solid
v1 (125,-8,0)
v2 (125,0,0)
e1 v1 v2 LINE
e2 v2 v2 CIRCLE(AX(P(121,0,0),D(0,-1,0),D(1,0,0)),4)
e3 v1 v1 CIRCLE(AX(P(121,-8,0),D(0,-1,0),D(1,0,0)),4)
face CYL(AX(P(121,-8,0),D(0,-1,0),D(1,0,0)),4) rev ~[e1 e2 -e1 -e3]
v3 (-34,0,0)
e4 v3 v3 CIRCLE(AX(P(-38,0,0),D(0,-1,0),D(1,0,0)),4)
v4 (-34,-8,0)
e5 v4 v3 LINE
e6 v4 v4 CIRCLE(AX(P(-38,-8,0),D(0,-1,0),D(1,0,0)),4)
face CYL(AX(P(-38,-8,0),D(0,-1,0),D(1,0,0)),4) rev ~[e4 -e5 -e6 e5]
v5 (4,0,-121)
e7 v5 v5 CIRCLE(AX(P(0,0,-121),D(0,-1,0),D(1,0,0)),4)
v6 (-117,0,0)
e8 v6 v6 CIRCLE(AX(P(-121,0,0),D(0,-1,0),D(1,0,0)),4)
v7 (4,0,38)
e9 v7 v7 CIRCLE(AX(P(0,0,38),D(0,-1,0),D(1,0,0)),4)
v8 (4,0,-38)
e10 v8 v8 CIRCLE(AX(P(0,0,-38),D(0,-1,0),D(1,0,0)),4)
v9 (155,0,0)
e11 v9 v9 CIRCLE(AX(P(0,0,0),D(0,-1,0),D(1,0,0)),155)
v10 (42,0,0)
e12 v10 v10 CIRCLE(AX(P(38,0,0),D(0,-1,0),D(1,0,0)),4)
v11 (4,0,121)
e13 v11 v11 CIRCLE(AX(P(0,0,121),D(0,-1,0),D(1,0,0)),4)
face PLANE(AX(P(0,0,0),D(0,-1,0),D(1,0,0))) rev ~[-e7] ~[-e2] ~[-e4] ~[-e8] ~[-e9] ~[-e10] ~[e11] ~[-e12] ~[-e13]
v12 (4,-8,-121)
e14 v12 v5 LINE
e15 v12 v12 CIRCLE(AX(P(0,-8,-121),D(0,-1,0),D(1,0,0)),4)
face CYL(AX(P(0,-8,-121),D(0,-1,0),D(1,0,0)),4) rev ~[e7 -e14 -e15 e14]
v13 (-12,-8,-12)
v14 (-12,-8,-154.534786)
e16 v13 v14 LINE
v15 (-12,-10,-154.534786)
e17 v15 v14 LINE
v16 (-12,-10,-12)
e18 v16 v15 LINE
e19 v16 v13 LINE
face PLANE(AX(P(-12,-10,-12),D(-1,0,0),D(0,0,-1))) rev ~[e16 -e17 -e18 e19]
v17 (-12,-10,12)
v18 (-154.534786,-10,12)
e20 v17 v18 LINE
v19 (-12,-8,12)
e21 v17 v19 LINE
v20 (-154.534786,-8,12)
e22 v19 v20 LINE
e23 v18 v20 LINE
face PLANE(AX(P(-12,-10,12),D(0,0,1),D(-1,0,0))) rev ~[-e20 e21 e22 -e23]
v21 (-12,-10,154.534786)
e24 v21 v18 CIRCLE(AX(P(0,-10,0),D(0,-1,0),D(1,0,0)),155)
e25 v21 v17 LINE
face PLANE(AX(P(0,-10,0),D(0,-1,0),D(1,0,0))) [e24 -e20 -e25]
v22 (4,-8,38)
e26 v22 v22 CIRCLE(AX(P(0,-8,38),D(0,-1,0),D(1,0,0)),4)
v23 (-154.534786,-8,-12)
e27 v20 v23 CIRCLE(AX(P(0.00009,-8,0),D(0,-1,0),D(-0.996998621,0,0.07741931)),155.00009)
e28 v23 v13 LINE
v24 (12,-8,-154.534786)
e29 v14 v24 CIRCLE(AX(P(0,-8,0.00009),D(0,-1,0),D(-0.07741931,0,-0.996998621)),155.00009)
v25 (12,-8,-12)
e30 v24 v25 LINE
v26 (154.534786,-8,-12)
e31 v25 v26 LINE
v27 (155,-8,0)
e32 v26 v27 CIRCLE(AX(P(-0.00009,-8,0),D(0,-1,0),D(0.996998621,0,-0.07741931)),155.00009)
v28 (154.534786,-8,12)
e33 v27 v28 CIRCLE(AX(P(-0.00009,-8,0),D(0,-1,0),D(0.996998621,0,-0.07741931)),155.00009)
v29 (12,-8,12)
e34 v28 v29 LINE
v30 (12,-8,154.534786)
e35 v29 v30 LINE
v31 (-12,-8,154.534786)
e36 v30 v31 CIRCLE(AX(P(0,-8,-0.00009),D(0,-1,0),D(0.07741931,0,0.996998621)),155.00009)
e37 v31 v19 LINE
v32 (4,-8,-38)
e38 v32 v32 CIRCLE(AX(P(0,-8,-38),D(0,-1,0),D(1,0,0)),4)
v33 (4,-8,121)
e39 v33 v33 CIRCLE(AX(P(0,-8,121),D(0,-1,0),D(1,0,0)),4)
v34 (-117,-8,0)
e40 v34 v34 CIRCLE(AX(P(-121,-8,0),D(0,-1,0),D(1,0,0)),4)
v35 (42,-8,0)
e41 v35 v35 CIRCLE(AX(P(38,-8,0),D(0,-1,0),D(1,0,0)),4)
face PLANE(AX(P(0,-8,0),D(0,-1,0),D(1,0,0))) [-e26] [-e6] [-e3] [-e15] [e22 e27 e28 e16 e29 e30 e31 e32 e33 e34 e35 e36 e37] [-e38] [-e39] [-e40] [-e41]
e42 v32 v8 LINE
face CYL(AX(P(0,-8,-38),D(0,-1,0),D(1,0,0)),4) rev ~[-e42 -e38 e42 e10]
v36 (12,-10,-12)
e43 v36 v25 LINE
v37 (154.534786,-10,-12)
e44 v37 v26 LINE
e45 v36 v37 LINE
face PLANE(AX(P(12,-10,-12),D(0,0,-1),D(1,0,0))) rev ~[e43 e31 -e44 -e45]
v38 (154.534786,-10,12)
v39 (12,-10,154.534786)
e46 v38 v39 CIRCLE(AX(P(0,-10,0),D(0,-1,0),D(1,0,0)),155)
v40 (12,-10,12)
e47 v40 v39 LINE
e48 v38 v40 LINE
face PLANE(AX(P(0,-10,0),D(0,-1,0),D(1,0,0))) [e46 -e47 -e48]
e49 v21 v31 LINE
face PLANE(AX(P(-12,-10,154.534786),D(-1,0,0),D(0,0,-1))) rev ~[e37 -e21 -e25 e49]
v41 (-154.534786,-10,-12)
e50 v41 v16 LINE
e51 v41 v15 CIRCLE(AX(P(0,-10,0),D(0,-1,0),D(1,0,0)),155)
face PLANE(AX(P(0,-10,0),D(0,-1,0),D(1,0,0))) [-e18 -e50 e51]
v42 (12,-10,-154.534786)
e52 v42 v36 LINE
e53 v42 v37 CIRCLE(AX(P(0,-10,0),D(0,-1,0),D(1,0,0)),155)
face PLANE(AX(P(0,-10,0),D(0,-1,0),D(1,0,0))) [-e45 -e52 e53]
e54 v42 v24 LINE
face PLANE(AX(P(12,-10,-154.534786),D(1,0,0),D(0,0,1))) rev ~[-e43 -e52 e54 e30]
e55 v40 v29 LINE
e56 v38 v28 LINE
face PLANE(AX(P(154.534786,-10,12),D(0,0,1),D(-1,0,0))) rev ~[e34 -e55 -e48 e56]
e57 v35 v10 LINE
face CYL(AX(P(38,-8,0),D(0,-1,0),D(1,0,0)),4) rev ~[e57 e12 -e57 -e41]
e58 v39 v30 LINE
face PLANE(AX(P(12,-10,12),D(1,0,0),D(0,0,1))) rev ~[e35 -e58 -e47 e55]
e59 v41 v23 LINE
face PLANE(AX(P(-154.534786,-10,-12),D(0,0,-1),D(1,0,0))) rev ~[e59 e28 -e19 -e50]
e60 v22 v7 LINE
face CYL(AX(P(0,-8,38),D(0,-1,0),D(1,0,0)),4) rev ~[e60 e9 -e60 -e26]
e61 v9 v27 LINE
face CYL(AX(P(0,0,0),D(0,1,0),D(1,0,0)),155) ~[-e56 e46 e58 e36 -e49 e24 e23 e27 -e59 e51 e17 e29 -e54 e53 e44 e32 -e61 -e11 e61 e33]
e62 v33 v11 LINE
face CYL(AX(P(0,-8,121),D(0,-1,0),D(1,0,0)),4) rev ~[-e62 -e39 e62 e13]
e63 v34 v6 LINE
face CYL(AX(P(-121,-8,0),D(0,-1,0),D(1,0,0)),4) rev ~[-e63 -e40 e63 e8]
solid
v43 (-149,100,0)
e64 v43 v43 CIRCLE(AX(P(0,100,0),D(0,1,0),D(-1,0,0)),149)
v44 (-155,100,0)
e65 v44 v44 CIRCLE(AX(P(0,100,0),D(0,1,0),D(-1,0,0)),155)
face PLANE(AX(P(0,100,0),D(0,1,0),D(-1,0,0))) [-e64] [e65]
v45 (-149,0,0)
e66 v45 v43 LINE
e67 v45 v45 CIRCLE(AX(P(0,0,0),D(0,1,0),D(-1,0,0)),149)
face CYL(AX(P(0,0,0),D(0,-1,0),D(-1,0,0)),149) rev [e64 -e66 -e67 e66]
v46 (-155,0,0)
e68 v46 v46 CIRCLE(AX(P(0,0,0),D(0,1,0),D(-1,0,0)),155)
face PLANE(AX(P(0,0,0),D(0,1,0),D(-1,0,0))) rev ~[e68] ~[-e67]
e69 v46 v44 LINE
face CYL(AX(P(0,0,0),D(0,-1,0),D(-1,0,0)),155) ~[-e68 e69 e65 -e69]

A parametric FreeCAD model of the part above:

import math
import FreeCAD as App
import Part
import Sketcher
Q = App.Units.Quantity

doc = App.newDocument("Part")
params = doc.addObject("Spreadsheet::Sheet", "Params")
for row, (alias, value) in enumerate([
    ("sketch1_diameter", "310 mm"),
    ("pad1_length", "10 mm"),
    ("pocket1_length", "2 mm"),
    ("sketch3_diameter", "8 mm"),
    ("sketch4_diameter", "310 mm"),
    ("sketch4_diameter2", "298 mm"),
    ("pad2_length", "100 mm"),
], start=1):
    params.set(f"A{row}", alias)
    params.set(f"B{row}", "=" + value)
    params.setAlias(f"B{row}", alias)

body = doc.addObject("PartDesign::Body", "Body")

# Sketch on XZ plane
sketch1 = body.newObject("Sketcher::SketchObject", "Sketch")
sketch1.AttachmentSupport = (doc.getObject("XZ_Plane"), [""])
sketch1.MapMode = "FlatFace"
sketch1.addGeometry(Part.Circle(App.Vector(0, 0, 0), App.Vector(0, 0, 1), 155), False)
sketch1.addConstraint(Sketcher.Constraint("Coincident", 0, 3, -1, 1))
sketch1.addConstraint(Sketcher.Constraint("Diameter", 0, Q("310 mm")))
sketch1.setExpression("Constraints[1]", "Params.sketch1_diameter")
pad1 = body.newObject("PartDesign::Pad", "Pad")
pad1.Profile = sketch1
pad1.setExpression("Length", "Params.pad1_length")

# Sketch on XZ plane
sketch2 = body.newObject("Sketcher::SketchObject", "Sketch001")
sketch2.AttachmentSupport = (doc.getObject("XZ_Plane"), [""])
sketch2.MapMode = "FlatFace"
sketch2.AttachmentOffset = App.Placement(App.Vector(0, 0, 10), App.Rotation())
sketch2.addGeometry(Part.LineSegment(App.Vector(-12, 155, 0), App.Vector(-12, 12, 0)), False)
sketch2.addGeometry(Part.LineSegment(App.Vector(-12, 12, 0), App.Vector(-155, 12, 0)), False)
sketch2.addGeometry(Part.ArcOfCircle(Part.Circle(App.Vector(0, 0, 0), App.Vector(0, 0, 1), 155), math.radians(175.56), math.radians(184.44)), False)
sketch2.addGeometry(Part.LineSegment(App.Vector(-155, -12, 0), App.Vector(-12, -12, 0)), False)
sketch2.addGeometry(Part.LineSegment(App.Vector(-12, -12, 0), App.Vector(-12, -155, 0)), False)
sketch2.addGeometry(Part.ArcOfCircle(Part.Circle(App.Vector(0, 0, 0), App.Vector(0, 0, 1), 155), math.radians(-94.44), math.radians(-85.56)), False)
sketch2.addGeometry(Part.LineSegment(App.Vector(12, -155, 0), App.Vector(12, -12, 0)), False)
sketch2.addGeometry(Part.LineSegment(App.Vector(12, -12, 0), App.Vector(155, -12, 0)), False)
sketch2.addGeometry(Part.ArcOfCircle(Part.Circle(App.Vector(0, 0, 0), App.Vector(0, 0, 1), 155), math.radians(-4.44), math.radians(4.44)), False)
sketch2.addGeometry(Part.LineSegment(App.Vector(155, 12, 0), App.Vector(12, 12, 0)), False)
sketch2.addGeometry(Part.LineSegment(App.Vector(12, 12, 0), App.Vector(12, 155, 0)), False)
sketch2.addGeometry(Part.ArcOfCircle(Part.Circle(App.Vector(0, 0, 0), App.Vector(0, 0, 1), 155), math.radians(85.56), math.radians(94.44)), False)
sketch2.addConstraint(Sketcher.Constraint("Coincident", 0, 2, 1, 1))
sketch2.addConstraint(Sketcher.Constraint("Coincident", 1, 2, 2, 1))
sketch2.addConstraint(Sketcher.Constraint("Coincident", 2, 2, 3, 1))
sketch2.addConstraint(Sketcher.Constraint("Coincident", 3, 2, 4, 1))
sketch2.addConstraint(Sketcher.Constraint("Coincident", 4, 2, 5, 1))
sketch2.addConstraint(Sketcher.Constraint("Coincident", 5, 2, 6, 1))
sketch2.addConstraint(Sketcher.Constraint("Coincident", 6, 2, 7, 1))
sketch2.addConstraint(Sketcher.Constraint("Coincident", 7, 2, 8, 1))
sketch2.addConstraint(Sketcher.Constraint("Coincident", 8, 2, 9, 1))
sketch2.addConstraint(Sketcher.Constraint("Coincident", 9, 2, 10, 1))
sketch2.addConstraint(Sketcher.Constraint("Coincident", 10, 2, 11, 1))
sketch2.addConstraint(Sketcher.Constraint("Coincident", 11, 2, 0, 1))
sketch2.addConstraint(Sketcher.Constraint("Vertical", 0))
sketch2.addConstraint(Sketcher.Constraint("Horizontal", 1))
sketch2.addConstraint(Sketcher.Constraint("Horizontal", 3))
sketch2.addConstraint(Sketcher.Constraint("Vertical", 4))
sketch2.addConstraint(Sketcher.Constraint("Vertical", 6))
sketch2.addConstraint(Sketcher.Constraint("Horizontal", 7))
sketch2.addConstraint(Sketcher.Constraint("Horizontal", 9))
sketch2.addConstraint(Sketcher.Constraint("Vertical", 10))
sketch2.addConstraint(Sketcher.Constraint("Equal", 2, 5))
sketch2.addConstraint(Sketcher.Constraint("Equal", 5, 8))
sketch2.addConstraint(Sketcher.Constraint("Equal", 8, 11))
sketch2.addConstraint(Sketcher.Constraint("Symmetric", 2, 3, 8, 3, -1, 1))
sketch2.addConstraint(Sketcher.Constraint("Symmetric", 5, 3, 11, 3, -1, 1))
sketch2.addConstraint(Sketcher.Constraint("Symmetric", 0, 2, 6, 2, -1, 1))
sketch2.addConstraint(Sketcher.Constraint("Symmetric", 3, 2, 9, 2, -1, 1))
sketch2.addConstraint(Sketcher.Constraint("Symmetric", 4, 2, 5, 2, -2))
sketch2.addConstraint(Sketcher.Constraint("Symmetric", 2, 2, 7, 2, -2))
sketch2.addConstraint(Sketcher.Constraint("Equal", 9, 0))
sketch2.addConstraint(Sketcher.Constraint("DistanceX", 0, 2, -1, 1, Q("12 mm")))
sketch2.addConstraint(Sketcher.Constraint("DistanceY", -1, 1, 0, 2, Q("12 mm")))
sketch2.addConstraint(Sketcher.Constraint("Radius", 2, Q("155.00009 mm")))
sketch2.addConstraint(Sketcher.Constraint("DistanceX", 1, 2, 1, 1, Q("142.534786 mm")))
pocket1 = body.newObject("PartDesign::Pocket", "Pocket")
pocket1.Profile = sketch2
pocket1.setExpression("Length", "Params.pocket1_length")

# Sketch on XZ plane
sketch3 = body.newObject("Sketcher::SketchObject", "Sketch002")
sketch3.AttachmentSupport = (doc.getObject("XZ_Plane"), [""])
sketch3.MapMode = "FlatFace"
sketch3.AttachmentOffset = App.Placement(App.Vector(0, 0, 8), App.Rotation())
sketch3.addGeometry(Part.Circle(App.Vector(0, 121, 0), App.Vector(0, 0, 1), 4), False)
sketch3.addGeometry(Part.Circle(App.Vector(0, 38, 0), App.Vector(0, 0, 1), 4), False)
sketch3.addGeometry(Part.Circle(App.Vector(-121, 0, 0), App.Vector(0, 0, 1), 4), False)
sketch3.addGeometry(Part.Circle(App.Vector(-38, 0, 0), App.Vector(0, 0, 1), 4), False)
sketch3.addGeometry(Part.Circle(App.Vector(0, -121, 0), App.Vector(0, 0, 1), 4), False)
sketch3.addGeometry(Part.Circle(App.Vector(0, -38, 0), App.Vector(0, 0, 1), 4), False)
sketch3.addGeometry(Part.Circle(App.Vector(121, 0, 0), App.Vector(0, 0, 1), 4), False)
sketch3.addGeometry(Part.Circle(App.Vector(38, 0, 0), App.Vector(0, 0, 1), 4), False)
sketch3.addConstraint(Sketcher.Constraint("Equal", 0, 1))
sketch3.addConstraint(Sketcher.Constraint("Equal", 1, 2))
sketch3.addConstraint(Sketcher.Constraint("Equal", 2, 3))
sketch3.addConstraint(Sketcher.Constraint("Equal", 3, 4))
sketch3.addConstraint(Sketcher.Constraint("Equal", 4, 5))
sketch3.addConstraint(Sketcher.Constraint("Equal", 5, 6))
sketch3.addConstraint(Sketcher.Constraint("Equal", 6, 7))
sketch3.addConstraint(Sketcher.Constraint("Symmetric", 0, 3, 4, 3, -1, 1))
sketch3.addConstraint(Sketcher.Constraint("Symmetric", 1, 3, 5, 3, -1, 1))
sketch3.addConstraint(Sketcher.Constraint("Symmetric", 2, 3, 6, 3, -1, 1))
sketch3.addConstraint(Sketcher.Constraint("Symmetric", 3, 3, 7, 3, -1, 1))
sketch3.addConstraint(Sketcher.Constraint("PointOnObject", 0, 3, -2))
sketch3.addConstraint(Sketcher.Constraint("PointOnObject", 1, 3, -2))
sketch3.addConstraint(Sketcher.Constraint("PointOnObject", 2, 3, -1))
sketch3.addConstraint(Sketcher.Constraint("PointOnObject", 3, 3, -1))
sketch3.addConstraint(Sketcher.Constraint("Diameter", 0, Q("8 mm")))
sketch3.addConstraint(Sketcher.Constraint("DistanceY", -1, 1, 0, 3, Q("121 mm")))
sketch3.addConstraint(Sketcher.Constraint("DistanceY", -1, 1, 1, 3, Q("38 mm")))
sketch3.addConstraint(Sketcher.Constraint("DistanceX", 2, 3, -1, 1, Q("121 mm")))
sketch3.addConstraint(Sketcher.Constraint("DistanceX", 3, 3, -1, 1, Q("38 mm")))
sketch3.setExpression("Constraints[15]", "Params.sketch3_diameter")
pocket2 = body.newObject("PartDesign::Pocket", "Pocket001")
pocket2.Profile = sketch3
pocket2.Type = "ThroughAll"
body2 = doc.addObject("PartDesign::Body", "Body001")

# Sketch on XZ plane
sketch4 = body2.newObject("Sketcher::SketchObject", "Sketch003")
sketch4.AttachmentSupport = (doc.getObject("XZ_Plane001"), [""])
sketch4.MapMode = "FlatFace"
sketch4.addGeometry(Part.Circle(App.Vector(0, 0, 0), App.Vector(0, 0, 1), 155), False)
sketch4.addGeometry(Part.Circle(App.Vector(0, 0, 0), App.Vector(0, 0, 1), 149), False)
sketch4.addConstraint(Sketcher.Constraint("Coincident", 0, 3, -1, 1))
sketch4.addConstraint(Sketcher.Constraint("Coincident", 1, 3, -1, 1))
sketch4.addConstraint(Sketcher.Constraint("Diameter", 0, Q("310 mm")))
sketch4.addConstraint(Sketcher.Constraint("Diameter", 1, Q("298 mm")))
sketch4.setExpression("Constraints[2]", "Params.sketch4_diameter")
sketch4.setExpression("Constraints[3]", "Params.sketch4_diameter2")
pad2 = body2.newObject("PartDesign::Pad", "Pad001")
pad2.Profile = sketch4
pad2.setExpression("Length", "Params.pad2_length")
pad2.Reversed = True

doc.recompute()
